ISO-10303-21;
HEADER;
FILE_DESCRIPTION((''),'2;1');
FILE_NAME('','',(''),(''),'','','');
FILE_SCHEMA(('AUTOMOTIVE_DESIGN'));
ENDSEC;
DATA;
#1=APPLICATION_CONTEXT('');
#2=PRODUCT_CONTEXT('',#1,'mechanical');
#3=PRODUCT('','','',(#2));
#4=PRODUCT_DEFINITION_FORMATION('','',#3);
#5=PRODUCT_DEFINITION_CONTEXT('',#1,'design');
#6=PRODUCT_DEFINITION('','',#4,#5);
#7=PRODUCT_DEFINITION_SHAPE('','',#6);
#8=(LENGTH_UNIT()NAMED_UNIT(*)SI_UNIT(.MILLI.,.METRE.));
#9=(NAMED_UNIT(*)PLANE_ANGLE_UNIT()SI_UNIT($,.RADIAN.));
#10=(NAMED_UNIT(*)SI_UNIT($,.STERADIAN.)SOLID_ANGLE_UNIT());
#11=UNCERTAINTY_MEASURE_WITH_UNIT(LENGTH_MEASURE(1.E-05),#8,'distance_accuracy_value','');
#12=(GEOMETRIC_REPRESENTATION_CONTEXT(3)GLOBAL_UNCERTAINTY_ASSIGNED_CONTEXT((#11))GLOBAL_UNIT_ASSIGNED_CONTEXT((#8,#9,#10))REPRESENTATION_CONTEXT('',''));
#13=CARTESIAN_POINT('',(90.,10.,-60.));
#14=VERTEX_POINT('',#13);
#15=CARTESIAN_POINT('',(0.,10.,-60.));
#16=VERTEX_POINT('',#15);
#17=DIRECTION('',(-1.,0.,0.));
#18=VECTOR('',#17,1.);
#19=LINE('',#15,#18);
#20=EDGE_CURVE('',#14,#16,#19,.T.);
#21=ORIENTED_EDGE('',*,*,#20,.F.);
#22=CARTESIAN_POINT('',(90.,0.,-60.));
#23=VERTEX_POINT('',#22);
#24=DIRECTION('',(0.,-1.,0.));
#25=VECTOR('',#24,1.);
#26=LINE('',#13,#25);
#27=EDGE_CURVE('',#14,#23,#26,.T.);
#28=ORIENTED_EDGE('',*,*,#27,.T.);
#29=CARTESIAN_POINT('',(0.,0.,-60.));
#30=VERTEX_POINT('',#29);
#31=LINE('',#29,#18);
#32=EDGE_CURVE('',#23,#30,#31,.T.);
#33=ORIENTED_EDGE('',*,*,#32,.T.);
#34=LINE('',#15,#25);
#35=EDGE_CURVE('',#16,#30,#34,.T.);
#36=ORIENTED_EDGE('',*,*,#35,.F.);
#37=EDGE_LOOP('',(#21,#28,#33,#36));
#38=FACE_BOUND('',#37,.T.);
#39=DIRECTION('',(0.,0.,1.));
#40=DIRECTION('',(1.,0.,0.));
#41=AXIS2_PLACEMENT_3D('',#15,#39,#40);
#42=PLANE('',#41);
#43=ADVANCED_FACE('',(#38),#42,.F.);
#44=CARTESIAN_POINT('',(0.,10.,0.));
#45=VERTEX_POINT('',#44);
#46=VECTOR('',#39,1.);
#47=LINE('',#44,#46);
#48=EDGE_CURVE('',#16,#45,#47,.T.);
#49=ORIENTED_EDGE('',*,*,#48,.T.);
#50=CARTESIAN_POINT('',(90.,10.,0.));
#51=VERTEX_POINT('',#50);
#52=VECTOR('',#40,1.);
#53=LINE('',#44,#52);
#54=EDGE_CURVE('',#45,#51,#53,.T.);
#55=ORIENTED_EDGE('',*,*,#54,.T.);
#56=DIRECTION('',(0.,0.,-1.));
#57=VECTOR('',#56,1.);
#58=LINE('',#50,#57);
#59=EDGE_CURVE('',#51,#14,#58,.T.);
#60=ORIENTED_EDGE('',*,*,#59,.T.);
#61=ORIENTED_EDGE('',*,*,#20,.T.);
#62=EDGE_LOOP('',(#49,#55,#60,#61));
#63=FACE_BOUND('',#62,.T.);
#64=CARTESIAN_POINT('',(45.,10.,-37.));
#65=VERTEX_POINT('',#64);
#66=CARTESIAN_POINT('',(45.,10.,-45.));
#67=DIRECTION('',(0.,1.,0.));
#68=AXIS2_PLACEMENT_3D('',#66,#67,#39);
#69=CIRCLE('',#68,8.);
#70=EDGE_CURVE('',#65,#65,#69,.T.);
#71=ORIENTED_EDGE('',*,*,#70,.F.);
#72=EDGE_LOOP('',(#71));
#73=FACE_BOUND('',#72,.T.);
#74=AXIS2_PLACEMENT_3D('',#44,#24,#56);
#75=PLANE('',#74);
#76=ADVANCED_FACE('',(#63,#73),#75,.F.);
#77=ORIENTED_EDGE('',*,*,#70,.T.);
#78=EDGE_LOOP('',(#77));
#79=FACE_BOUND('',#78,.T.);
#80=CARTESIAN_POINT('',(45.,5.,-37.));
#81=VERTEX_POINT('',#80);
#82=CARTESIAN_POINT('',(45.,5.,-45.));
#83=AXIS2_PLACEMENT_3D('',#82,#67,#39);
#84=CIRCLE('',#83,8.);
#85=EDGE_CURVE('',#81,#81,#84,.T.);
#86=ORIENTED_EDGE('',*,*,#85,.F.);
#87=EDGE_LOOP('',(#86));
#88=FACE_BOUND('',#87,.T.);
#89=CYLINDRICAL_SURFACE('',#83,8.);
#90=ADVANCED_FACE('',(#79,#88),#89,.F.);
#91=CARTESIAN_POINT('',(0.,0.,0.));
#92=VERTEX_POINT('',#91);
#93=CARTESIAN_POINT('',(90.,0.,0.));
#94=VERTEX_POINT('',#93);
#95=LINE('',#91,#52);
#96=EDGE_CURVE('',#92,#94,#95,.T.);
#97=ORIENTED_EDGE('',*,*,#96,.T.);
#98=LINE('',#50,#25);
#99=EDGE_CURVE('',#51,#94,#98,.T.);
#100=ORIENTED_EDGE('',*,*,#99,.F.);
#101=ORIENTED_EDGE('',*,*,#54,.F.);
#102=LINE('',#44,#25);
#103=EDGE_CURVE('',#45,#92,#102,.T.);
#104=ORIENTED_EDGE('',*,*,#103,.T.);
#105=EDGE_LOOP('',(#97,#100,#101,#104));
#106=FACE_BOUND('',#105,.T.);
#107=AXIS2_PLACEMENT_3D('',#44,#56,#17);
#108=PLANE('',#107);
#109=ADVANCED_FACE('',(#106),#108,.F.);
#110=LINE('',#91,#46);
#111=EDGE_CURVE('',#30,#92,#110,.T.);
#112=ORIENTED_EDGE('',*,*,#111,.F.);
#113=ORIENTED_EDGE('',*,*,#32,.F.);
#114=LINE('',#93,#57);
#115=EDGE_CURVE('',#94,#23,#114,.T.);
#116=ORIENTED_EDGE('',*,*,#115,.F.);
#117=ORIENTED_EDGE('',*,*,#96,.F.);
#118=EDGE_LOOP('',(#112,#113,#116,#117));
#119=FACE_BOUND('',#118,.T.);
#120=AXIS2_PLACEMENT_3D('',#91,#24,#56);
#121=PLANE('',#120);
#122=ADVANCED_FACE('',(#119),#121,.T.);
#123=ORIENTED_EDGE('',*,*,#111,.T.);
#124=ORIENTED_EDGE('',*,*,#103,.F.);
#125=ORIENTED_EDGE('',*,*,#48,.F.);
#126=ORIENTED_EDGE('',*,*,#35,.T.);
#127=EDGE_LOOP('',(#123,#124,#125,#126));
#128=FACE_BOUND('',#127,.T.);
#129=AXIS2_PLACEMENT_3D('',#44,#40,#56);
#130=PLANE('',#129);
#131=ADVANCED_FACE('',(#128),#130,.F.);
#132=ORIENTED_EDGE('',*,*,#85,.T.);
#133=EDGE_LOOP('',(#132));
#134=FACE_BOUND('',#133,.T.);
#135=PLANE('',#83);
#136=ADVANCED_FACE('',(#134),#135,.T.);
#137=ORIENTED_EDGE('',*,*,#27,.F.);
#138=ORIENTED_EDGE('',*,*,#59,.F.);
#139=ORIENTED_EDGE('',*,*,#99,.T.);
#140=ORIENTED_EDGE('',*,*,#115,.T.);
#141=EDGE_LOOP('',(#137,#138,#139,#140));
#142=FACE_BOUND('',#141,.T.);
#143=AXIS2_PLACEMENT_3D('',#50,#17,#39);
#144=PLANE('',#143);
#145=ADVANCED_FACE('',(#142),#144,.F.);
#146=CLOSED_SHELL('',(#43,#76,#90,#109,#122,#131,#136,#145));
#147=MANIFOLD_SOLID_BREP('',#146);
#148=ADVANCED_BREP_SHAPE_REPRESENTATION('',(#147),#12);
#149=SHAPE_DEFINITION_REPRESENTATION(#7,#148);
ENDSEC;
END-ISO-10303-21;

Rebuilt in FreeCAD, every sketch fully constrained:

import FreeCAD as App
import Part
import Sketcher

V = App.Vector
Q = App.Units.Quantity


def add_polygon(sketch, points):
    """Adds a closed chain of lines whose ends are joined by coincident constraints."""
    first, n = sketch.GeometryCount, len(points)
    for a, b in zip(points, points[1:] + points[:1]):
        sketch.addGeometry(Part.LineSegment(App.Vector(*a, 0), App.Vector(*b, 0)), False)
    for i in range(n):
        sketch.addConstraint(Sketcher.Constraint("Coincident", first + i, 2, first + (i + 1) % n, 1))

doc = App.newDocument("Part")
params = doc.addObject("Spreadsheet::Sheet", "Params")
for row, (alias, value) in enumerate([
    ("sketch1_width", "90 mm"),
    ("sketch1_height", "60 mm"),
    ("pad1_length", "10 mm"),
    ("sketch2_diameter", "16 mm"),
    ("pocket1_length", "5 mm"),
], start=1):
    params.set(f"A{row}", alias)
    params.set(f"B{row}", "=" + value)
    params.setAlias(f"B{row}", alias)

body = doc.addObject("PartDesign::Body", "Body")

# Sketch on XZ plane
sketch1 = body.newObject("Sketcher::SketchObject", "Sketch")
sketch1.AttachmentSupport = (doc.getObject("XZ_Plane"), [""])
sketch1.MapMode = "FlatFace"
add_polygon(sketch1, [(0, -60), (0, 0), (90, 0), (90, -60)])  # lines 0-3
sketch1.addConstraint(Sketcher.Constraint("Vertical", 0))
sketch1.addConstraint(Sketcher.Constraint("Horizontal", 1))
sketch1.addConstraint(Sketcher.Constraint("Vertical", 2))
sketch1.addConstraint(Sketcher.Constraint("Horizontal", 3))
sketch1.addConstraint(Sketcher.Constraint("Coincident", 0, 2, -1, 1))
sketch1.addConstraint(Sketcher.Constraint("DistanceX", 1, 1, 1, 2, Q("90 mm")))
sketch1.addConstraint(Sketcher.Constraint("DistanceY", 0, 1, 0, 2, Q("60 mm")))
sketch1.setExpression("Constraints[9]", "Params.sketch1_width")
sketch1.setExpression("Constraints[10]", "Params.sketch1_height")
pad1 = body.newObject("PartDesign::Pad", "Pad")
pad1.Profile = sketch1
pad1.setExpression("Length", "Params.pad1_length")
pad1.Reversed = True

# Sketch on XZ plane
sketch2 = body.newObject("Sketcher::SketchObject", "Sketch001")
sketch2.AttachmentSupport = (doc.getObject("XZ_Plane"), [""])
sketch2.MapMode = "FlatFace"
sketch2.AttachmentOffset = App.Placement(V(0, 0, -10), App.Rotation())
sketch2.addGeometry(Part.Circle(V(45, -45, 0), V(0, 0, 1), 8), False)
sketch2.addConstraint(Sketcher.Constraint("Diameter", 0, Q("16 mm")))
sketch2.addConstraint(Sketcher.Constraint("DistanceX", -1, 1, 0, 3, Q("45 mm")))
sketch2.addConstraint(Sketcher.Constraint("DistanceY", 0, 3, -1, 1, Q("45 mm")))
sketch2.setExpression("Constraints[0]", "Params.sketch2_diameter")
pocket1 = body.newObject("PartDesign::Pocket", "Pocket")
pocket1.Profile = sketch2
pocket1.setExpression("Length", "Params.pocket1_length")
pocket1.Reversed = True

doc.recompute()
